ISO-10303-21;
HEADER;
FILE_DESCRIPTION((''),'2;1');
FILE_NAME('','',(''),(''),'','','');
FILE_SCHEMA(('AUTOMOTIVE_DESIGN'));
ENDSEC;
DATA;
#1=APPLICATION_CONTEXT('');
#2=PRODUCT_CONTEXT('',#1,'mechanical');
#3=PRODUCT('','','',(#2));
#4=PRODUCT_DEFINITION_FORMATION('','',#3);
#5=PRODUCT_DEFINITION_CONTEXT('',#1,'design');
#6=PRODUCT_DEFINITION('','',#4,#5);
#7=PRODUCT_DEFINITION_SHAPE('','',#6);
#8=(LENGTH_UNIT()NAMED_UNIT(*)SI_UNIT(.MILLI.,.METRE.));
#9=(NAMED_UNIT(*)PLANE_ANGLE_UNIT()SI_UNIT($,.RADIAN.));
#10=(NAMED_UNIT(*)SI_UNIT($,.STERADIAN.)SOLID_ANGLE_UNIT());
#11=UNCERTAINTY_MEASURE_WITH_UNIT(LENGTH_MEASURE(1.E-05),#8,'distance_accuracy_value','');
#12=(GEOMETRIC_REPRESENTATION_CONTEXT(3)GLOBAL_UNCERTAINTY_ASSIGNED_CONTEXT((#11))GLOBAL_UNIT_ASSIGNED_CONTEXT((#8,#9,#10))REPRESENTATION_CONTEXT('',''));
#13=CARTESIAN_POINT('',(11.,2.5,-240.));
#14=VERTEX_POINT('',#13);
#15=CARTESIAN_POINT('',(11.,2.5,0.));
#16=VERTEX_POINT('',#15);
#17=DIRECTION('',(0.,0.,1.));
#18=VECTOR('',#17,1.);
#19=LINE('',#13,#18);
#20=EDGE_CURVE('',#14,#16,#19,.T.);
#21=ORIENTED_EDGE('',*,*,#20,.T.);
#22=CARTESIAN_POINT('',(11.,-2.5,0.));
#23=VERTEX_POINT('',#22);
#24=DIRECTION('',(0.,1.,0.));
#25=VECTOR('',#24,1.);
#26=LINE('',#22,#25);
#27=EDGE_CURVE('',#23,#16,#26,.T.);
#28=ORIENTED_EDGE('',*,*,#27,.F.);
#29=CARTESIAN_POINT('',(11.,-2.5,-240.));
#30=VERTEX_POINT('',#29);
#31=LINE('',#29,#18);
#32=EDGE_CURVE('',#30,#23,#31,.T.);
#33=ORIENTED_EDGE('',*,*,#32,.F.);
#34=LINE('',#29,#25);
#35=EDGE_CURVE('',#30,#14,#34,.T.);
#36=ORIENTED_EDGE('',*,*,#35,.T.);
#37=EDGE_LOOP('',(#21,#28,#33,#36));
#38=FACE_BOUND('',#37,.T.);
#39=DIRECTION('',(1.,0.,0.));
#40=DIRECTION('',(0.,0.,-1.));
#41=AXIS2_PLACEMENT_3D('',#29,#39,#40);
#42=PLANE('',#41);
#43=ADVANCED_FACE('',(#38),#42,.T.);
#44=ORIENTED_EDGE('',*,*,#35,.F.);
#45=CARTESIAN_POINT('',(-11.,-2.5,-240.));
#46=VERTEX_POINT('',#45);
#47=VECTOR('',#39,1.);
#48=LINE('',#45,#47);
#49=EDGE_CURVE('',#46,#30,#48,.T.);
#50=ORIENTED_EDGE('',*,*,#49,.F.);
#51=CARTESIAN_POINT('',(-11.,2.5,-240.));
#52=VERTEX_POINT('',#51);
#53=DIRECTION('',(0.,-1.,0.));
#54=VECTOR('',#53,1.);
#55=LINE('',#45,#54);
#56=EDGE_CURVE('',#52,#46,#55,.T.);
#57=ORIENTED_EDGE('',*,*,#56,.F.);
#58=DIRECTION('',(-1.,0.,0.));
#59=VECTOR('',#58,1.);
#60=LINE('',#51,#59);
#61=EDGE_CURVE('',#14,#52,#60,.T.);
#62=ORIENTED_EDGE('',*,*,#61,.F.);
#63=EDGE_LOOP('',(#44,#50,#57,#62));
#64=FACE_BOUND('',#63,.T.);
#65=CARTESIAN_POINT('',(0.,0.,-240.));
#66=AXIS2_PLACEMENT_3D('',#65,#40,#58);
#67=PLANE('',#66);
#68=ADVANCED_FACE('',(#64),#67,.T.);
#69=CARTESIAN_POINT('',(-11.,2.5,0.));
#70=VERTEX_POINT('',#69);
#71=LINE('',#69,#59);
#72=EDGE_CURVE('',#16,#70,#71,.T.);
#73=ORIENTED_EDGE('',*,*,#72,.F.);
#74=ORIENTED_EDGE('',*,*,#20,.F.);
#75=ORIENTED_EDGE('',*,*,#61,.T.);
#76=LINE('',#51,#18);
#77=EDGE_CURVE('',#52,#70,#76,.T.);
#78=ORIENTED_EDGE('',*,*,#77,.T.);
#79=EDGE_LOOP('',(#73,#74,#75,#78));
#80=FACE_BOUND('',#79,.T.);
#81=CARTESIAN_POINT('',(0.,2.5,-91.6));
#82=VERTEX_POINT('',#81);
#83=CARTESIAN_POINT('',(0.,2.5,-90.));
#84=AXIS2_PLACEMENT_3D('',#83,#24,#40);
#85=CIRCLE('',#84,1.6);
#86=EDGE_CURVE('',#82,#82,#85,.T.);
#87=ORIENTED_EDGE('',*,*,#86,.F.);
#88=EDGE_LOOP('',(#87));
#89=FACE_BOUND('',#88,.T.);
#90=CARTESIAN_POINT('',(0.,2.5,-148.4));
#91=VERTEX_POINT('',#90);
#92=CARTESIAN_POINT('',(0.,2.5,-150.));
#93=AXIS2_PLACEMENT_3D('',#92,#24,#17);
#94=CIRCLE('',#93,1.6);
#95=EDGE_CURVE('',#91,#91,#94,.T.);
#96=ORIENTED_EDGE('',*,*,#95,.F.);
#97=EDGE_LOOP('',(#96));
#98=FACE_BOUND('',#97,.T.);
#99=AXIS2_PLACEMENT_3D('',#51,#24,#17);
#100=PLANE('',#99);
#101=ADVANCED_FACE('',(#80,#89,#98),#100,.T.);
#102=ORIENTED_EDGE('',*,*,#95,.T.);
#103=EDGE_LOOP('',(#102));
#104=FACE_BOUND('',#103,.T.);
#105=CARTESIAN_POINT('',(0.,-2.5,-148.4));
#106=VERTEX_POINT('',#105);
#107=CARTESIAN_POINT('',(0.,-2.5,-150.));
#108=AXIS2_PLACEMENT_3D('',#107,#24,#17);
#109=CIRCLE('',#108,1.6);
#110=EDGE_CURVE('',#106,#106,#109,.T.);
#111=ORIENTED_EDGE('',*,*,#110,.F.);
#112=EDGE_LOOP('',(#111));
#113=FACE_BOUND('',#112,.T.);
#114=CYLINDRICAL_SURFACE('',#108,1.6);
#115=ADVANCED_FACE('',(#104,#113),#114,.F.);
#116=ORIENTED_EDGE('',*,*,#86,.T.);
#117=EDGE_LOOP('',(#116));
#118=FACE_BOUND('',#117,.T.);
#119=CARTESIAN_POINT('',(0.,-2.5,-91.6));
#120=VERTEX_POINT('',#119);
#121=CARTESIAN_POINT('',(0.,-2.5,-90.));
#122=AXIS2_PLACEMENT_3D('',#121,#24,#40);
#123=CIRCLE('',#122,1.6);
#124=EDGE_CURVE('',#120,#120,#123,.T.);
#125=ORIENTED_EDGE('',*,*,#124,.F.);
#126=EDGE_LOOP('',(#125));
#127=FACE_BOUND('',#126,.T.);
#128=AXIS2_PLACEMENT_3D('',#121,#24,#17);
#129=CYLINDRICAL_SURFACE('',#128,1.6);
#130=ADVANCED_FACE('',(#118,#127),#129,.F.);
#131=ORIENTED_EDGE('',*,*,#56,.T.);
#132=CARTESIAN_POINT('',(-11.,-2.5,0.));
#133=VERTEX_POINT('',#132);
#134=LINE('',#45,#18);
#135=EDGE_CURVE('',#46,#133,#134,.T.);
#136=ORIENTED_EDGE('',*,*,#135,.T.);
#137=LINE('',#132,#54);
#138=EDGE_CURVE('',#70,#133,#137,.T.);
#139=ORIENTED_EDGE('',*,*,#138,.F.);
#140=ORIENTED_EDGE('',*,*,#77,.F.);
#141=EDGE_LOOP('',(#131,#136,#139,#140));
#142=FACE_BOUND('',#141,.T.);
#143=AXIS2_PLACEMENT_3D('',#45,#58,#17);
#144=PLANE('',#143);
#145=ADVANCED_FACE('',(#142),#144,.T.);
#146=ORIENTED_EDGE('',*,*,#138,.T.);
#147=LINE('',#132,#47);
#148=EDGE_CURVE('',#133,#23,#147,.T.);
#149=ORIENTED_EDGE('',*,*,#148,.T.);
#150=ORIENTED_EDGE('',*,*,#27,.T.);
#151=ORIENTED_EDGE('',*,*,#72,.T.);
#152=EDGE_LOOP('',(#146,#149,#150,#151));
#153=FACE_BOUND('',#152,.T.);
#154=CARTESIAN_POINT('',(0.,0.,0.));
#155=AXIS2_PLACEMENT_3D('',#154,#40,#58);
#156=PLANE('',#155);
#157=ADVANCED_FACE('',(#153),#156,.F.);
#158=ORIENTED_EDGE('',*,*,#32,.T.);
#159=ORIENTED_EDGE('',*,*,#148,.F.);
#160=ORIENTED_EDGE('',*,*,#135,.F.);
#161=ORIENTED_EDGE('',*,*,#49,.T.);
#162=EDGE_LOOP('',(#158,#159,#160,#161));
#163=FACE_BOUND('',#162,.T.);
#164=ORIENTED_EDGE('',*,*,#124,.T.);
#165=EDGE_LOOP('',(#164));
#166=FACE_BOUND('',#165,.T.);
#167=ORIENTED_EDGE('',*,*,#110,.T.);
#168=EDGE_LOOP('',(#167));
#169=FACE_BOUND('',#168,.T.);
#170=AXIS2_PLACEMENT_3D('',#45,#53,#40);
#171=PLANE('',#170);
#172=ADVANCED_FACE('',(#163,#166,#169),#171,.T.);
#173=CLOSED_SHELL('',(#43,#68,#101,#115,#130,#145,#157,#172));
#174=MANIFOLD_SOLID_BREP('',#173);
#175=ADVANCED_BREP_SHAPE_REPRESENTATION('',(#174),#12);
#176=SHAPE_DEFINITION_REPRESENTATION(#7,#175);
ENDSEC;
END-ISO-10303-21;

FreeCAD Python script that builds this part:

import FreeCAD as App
import Part
import Sketcher
from FreeCAD import Vector

doc = App.newDocument("Part")
params = doc.addObject("Spreadsheet::Sheet", "Params")
for row, (alias, value) in enumerate([
    ("sketch1_width", "22 mm"),
    ("sketch1_height", "5 mm"),
    ("pad1_length", "240 mm"),
    ("sketch2_diameter", "3.2 mm"),
], start=1):
    params.set(f"A{row}", alias)
    params.set(f"B{row}", "=" + value)
    params.setAlias(f"B{row}", alias)

body = doc.addObject("PartDesign::Body", "Body")

sketch1 = body.newObject("Sketcher::SketchObject", "Sketch")
sketch1.AttachmentSupport = (doc.getObject("XY_Plane"), [""])
sketch1.MapMode = "FlatFace"
sketch1.addGeometry(Part.LineSegment(Vector(-11, 2.5, 0), Vector(-11, -2.5, 0)), False)
sketch1.addGeometry(Part.LineSegment(Vector(-11, -2.5, 0), Vector(11, -2.5, 0)), False)
sketch1.addGeometry(Part.LineSegment(Vector(11, -2.5, 0), Vector(11, 2.5, 0)), False)
sketch1.addGeometry(Part.LineSegment(Vector(11, 2.5, 0), Vector(-11, 2.5, 0)), False)
sketch1.addConstraint(Sketcher.Constraint("Coincident", 0, 2, 1, 1))
sketch1.addConstraint(Sketcher.Constraint("Coincident", 1, 2, 2, 1))
sketch1.addConstraint(Sketcher.Constraint("Coincident", 2, 2, 3, 1))
sketch1.addConstraint(Sketcher.Constraint("Coincident", 3, 2, 0, 1))
sketch1.addConstraint(Sketcher.Constraint("Vertical", 0))
sketch1.addConstraint(Sketcher.Constraint("Horizontal", 1))
sketch1.addConstraint(Sketcher.Constraint("Vertical", 2))
sketch1.addConstraint(Sketcher.Constraint("Horizontal", 3))
sketch1.addConstraint(Sketcher.Constraint("Symmetric", 0, 2, 2, 2, -1, 1))
sketch1.addConstraint(Sketcher.Constraint("DistanceX", 1, 1, 1, 2, 22.0))
sketch1.addConstraint(Sketcher.Constraint("DistanceY", 0, 2, 0, 1, 5.0))
sketch1.setExpression("Constraints[9]", "Params.sketch1_width")
sketch1.setExpression("Constraints[10]", "Params.sketch1_height")
pad1 = body.newObject("PartDesign::Pad", "Pad")
pad1.Profile = sketch1
pad1.setExpression("Length", "Params.pad1_length")
pad1.Reversed = True

sketch2 = body.newObject("Sketcher::SketchObject", "Sketch001")
sketch2.AttachmentSupport = (doc.getObject("XZ_Plane"), [""])
sketch2.MapMode = "FlatFace"
sketch2.AttachmentOffset = App.Placement(Vector(0, 0, -2.5), App.Rotation())
sketch2.addGeometry(Part.Circle(Vector(0, -150, 0), Vector(0, 0, 1), 1.6), False)
sketch2.addGeometry(Part.Circle(Vector(0, -90, 0), Vector(0, 0, 1), 1.6), False)
sketch2.addConstraint(Sketcher.Constraint("Equal", 0, 1))
sketch2.addConstraint(Sketcher.Constraint("PointOnObject", 0, 3, -2))
sketch2.addConstraint(Sketcher.Constraint("PointOnObject", 1, 3, -2))
sketch2.addConstraint(Sketcher.Constraint("Diameter", 0, 3.2))
sketch2.addConstraint(Sketcher.Constraint("DistanceY", 0, 3, -1, 1, 150.0))
sketch2.addConstraint(Sketcher.Constraint("DistanceY", 1, 3, -1, 1, 90.0))
sketch2.setExpression("Constraints[3]", "Params.sketch2_diameter")
pocket1 = body.newObject("PartDesign::Pocket", "Pocket")
pocket1.Profile = sketch2
pocket1.Type = "ThroughAll"
pocket1.Reversed = True

doc.recompute()
